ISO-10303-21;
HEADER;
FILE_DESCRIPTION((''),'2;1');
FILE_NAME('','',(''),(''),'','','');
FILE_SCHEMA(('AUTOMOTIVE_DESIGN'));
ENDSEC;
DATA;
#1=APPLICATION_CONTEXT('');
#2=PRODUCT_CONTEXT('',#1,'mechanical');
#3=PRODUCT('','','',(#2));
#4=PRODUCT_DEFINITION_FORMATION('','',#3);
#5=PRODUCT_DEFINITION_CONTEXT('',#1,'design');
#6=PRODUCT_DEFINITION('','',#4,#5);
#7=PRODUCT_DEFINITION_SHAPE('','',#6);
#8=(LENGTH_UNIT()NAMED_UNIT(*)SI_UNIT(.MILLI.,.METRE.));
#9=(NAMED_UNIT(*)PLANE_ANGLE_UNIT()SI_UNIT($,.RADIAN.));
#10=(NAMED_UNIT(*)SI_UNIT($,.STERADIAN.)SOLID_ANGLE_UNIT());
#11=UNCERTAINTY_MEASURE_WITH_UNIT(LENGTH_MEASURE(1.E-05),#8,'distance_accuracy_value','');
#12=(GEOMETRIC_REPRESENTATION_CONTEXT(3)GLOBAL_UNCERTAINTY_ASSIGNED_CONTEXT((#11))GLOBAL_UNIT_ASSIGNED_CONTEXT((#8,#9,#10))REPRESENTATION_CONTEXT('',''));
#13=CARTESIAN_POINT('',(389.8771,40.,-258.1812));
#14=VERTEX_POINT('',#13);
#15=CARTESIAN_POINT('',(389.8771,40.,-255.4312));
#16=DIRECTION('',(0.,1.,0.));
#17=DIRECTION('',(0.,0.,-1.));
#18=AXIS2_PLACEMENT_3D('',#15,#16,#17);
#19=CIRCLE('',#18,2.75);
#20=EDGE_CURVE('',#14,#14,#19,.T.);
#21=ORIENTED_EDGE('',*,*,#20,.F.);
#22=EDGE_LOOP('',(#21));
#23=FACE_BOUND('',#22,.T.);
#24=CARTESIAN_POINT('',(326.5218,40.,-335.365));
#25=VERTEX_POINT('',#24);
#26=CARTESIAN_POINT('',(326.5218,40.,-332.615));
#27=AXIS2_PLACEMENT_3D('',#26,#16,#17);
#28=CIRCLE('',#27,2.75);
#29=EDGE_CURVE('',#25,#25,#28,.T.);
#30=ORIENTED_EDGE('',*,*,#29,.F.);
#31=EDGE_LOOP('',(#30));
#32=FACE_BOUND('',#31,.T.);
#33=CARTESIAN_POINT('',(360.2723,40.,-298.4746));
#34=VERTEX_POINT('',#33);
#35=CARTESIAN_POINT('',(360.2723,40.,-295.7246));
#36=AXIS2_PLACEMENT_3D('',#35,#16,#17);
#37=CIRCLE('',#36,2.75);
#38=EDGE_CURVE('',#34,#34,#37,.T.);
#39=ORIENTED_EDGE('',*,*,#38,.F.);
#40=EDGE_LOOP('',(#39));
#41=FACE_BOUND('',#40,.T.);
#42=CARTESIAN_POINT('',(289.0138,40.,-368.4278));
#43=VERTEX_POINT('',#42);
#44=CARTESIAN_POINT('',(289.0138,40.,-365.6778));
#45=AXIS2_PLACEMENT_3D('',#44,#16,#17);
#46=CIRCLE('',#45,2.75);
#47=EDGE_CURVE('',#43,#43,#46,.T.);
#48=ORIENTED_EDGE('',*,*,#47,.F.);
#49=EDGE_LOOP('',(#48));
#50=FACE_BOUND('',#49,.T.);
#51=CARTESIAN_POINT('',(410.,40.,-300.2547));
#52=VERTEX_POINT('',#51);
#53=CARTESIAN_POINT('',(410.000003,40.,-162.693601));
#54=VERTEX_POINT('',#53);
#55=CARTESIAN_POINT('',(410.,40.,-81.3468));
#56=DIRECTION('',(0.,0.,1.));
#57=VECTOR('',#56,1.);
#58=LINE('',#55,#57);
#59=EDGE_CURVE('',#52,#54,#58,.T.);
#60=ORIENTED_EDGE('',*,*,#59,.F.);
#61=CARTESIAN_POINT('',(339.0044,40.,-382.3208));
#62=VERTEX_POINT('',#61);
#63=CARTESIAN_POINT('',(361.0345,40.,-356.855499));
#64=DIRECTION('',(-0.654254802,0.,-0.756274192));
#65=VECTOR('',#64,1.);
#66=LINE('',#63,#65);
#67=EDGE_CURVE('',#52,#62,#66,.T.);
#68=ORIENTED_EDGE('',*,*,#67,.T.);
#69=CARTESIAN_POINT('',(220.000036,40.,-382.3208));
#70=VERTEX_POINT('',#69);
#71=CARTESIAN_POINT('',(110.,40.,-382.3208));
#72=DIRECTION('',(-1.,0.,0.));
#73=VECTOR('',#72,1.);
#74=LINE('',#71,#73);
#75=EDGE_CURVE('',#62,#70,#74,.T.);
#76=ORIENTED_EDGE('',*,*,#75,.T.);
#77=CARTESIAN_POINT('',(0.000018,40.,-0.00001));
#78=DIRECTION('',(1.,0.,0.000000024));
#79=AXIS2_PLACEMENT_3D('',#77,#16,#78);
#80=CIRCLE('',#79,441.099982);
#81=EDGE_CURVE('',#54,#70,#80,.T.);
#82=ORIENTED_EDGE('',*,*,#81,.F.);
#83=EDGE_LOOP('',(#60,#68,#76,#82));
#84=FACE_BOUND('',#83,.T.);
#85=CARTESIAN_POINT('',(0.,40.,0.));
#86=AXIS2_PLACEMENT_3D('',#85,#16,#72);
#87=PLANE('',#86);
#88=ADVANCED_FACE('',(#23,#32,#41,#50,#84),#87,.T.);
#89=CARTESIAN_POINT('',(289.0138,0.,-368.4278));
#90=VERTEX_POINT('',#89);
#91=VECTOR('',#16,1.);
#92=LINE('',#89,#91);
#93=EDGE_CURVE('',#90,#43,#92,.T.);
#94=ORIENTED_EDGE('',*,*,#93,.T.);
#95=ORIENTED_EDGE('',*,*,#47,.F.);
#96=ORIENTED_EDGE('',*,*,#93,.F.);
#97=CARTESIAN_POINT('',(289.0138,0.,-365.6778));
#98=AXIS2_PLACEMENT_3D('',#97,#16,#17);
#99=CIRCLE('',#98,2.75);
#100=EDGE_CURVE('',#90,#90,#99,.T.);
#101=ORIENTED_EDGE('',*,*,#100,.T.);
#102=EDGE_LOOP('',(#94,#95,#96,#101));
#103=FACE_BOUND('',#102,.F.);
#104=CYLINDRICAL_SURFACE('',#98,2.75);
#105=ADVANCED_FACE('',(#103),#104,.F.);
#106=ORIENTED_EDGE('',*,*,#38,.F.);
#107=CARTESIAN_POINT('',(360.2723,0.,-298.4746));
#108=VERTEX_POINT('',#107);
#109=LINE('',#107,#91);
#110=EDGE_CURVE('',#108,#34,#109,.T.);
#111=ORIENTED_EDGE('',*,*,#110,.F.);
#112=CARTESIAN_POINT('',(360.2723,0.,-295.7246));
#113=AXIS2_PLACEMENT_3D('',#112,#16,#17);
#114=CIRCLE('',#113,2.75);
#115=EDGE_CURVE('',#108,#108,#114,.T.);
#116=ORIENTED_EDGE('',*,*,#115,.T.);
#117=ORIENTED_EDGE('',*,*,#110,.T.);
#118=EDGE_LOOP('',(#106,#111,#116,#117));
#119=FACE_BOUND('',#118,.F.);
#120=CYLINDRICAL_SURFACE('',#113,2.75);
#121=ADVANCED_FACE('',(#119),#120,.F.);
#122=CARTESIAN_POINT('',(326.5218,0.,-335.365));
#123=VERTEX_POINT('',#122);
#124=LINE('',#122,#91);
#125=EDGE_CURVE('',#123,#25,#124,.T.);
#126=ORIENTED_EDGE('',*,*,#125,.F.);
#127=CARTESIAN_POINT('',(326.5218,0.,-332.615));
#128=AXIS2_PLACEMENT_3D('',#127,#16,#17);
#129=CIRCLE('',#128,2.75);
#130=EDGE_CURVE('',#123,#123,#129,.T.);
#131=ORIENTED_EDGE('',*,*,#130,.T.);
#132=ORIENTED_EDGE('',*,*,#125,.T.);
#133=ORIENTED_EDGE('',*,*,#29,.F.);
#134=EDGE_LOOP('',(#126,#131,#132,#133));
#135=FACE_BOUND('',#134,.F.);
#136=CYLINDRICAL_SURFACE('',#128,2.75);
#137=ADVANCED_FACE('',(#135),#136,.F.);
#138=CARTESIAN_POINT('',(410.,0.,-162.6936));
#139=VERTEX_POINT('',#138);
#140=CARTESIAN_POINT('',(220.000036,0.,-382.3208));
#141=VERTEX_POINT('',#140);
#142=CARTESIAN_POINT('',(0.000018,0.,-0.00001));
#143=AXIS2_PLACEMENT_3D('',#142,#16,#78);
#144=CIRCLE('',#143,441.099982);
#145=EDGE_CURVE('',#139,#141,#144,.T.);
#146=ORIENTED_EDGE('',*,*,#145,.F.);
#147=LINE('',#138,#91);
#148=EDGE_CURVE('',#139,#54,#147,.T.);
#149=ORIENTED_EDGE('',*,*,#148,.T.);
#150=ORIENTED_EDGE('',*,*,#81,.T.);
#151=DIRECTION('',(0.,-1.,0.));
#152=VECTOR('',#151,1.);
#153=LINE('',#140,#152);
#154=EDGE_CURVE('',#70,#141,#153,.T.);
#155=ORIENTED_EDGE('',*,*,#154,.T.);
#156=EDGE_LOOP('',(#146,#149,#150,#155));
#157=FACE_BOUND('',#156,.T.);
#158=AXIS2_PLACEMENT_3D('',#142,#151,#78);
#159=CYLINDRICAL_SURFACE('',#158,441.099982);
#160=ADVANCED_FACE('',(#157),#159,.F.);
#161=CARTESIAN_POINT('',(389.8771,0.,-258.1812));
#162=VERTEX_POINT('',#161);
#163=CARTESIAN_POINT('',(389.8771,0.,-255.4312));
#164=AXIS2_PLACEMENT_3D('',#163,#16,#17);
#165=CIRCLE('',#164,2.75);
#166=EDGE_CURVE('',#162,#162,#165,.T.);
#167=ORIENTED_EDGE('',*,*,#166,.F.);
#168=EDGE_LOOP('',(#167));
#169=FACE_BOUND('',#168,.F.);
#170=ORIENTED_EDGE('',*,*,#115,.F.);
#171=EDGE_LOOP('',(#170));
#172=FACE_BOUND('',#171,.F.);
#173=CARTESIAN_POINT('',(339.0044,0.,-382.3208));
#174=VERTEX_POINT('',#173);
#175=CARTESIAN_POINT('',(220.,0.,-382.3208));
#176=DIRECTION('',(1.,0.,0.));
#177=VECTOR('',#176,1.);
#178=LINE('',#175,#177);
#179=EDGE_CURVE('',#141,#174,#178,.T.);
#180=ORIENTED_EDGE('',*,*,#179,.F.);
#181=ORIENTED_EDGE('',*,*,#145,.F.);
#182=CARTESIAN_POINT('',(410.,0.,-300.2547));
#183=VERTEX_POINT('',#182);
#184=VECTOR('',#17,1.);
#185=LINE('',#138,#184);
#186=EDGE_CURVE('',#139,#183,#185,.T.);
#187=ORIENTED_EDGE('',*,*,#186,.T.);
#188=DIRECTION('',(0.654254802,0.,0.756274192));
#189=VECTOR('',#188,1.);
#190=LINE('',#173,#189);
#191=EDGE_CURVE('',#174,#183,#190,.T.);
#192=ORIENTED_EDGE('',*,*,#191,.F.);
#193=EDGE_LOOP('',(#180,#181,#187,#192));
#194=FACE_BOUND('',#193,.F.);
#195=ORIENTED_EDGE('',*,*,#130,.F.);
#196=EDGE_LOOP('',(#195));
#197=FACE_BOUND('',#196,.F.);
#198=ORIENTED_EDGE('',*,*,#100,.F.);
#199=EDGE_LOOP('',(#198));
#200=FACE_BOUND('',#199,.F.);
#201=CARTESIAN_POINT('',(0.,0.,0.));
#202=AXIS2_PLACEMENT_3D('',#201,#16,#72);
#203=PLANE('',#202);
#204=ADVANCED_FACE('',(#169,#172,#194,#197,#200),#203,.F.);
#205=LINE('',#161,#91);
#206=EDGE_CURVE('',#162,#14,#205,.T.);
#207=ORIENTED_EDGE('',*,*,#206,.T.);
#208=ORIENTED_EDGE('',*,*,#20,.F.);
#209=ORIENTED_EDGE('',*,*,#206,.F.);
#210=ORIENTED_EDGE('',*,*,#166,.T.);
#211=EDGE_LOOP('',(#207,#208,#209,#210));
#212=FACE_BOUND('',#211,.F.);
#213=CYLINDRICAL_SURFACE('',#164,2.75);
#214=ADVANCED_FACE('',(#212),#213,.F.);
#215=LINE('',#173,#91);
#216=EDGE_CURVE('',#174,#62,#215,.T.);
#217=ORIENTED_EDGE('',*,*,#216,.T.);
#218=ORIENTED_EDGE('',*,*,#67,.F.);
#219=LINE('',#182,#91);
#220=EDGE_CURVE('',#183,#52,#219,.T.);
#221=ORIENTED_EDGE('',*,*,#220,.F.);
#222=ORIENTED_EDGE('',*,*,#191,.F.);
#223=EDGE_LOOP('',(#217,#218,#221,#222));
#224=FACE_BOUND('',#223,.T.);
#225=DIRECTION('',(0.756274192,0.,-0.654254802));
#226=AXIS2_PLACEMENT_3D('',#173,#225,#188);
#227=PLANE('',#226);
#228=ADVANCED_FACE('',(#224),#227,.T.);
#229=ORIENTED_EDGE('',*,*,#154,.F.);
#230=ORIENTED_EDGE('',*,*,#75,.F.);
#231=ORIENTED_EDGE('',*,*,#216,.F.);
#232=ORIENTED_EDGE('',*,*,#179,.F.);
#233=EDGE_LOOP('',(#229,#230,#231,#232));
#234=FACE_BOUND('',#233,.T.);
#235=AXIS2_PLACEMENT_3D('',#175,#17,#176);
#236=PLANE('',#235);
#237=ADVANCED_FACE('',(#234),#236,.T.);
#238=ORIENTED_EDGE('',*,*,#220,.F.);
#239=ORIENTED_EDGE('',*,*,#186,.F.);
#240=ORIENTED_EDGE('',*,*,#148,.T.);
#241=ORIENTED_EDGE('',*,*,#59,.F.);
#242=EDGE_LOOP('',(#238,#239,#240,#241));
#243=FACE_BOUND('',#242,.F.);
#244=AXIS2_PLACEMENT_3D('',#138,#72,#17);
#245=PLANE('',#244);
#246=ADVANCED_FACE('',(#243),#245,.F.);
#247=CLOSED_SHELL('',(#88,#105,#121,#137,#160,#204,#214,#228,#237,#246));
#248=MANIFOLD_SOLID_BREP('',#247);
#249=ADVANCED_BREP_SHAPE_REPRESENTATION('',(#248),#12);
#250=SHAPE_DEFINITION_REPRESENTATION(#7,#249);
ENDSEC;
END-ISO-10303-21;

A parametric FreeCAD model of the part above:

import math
import FreeCAD as App
import Part
import Sketcher

V = App.Vector
Q = App.Units.Quantity

doc = App.newDocument("Part")
params = doc.addObject("Spreadsheet::Sheet", "Params")
for row, (alias, value) in enumerate([
    ("sketch1_radius", "441.1 mm"),
    ("sketch1_width", "720 mm"),
    ("sketch1_height", "400 mm"),
    ("pad1_length", "40 mm"),
    ("sketch2_diameter", "5.5 mm"),
    ("hole_diameter", "5.5 mm"),
], start=1):
    params.set(f"A{row}", alias)
    params.set(f"B{row}", "=" + value)
    params.setAlias(f"B{row}", alias)

body = doc.addObject("PartDesign::Body", "Body")

# Sketch on XZ plane
sketch1 = doc.addObject("Sketcher::SketchObject", "Sketch")
body.addObject(sketch1)
sketch1.AttachmentSupport = (doc.XZ_Plane, [""])
sketch1.MapMode = "FlatFace"
sketch1.addGeometry([
    Part.ArcOfCircle(Part.Circle(V(0, 0, 0), V(0, 0, 1), 441), math.radians(-120), math.radians(0)),  # 0
    Part.LineSegment(V(441, 0, 0), V(441, 400, 0)),  # 1
    Part.LineSegment(V(441, 400, 0), V(500, 400, 0)),  # 2
    Part.LineSegment(V(500, 400, 0), V(500, -500, 0)),  # 3
    Part.LineSegment(V(500, -500, 0), V(-220, -500, 0)),  # 4
    Part.LineSegment(V(-220, -500, 0), V(-220, -382, 0)),  # 5
], False)
sketch1.addConstraint([
    Sketcher.Constraint("Tangent", 0, 2, 1, 1),
    Sketcher.Constraint("Coincident", 1, 2, 2, 1),
    Sketcher.Constraint("Coincident", 2, 2, 3, 1),
    Sketcher.Constraint("Coincident", 3, 2, 4, 1),
    Sketcher.Constraint("Coincident", 4, 2, 5, 1),
    Sketcher.Constraint("Coincident", 5, 2, 0, 1),
    Sketcher.Constraint("Vertical", 1),
    Sketcher.Constraint("Horizontal", 2),
    Sketcher.Constraint("Vertical", 3),
    Sketcher.Constraint("Horizontal", 4),
    Sketcher.Constraint("Vertical", 5),
    Sketcher.Constraint("Coincident", 0, 3, -1, 1),
    Sketcher.Constraint("Radius", 0, Q("441.1 mm")),
    Sketcher.Constraint("DistanceX", 4, 2, 4, 1, Q("720 mm")),
    Sketcher.Constraint("DistanceY", 1, 1, 1, 2, Q("400 mm")),
    Sketcher.Constraint("DistanceX", -1, 1, 2, 2, Q("500 mm")),
    Sketcher.Constraint("DistanceY", 3, 2, -1, 1, Q("500 mm")),
])
sketch1.setExpression("Constraints[12]", "Params.sketch1_radius")
sketch1.setExpression("Constraints[13]", "Params.sketch1_width")
sketch1.setExpression("Constraints[14]", "Params.sketch1_height")
pad1 = doc.addObject("PartDesign::Pad", "Pad")
body.addObject(pad1)
pad1.Profile = sketch1
pad1.setExpression("Length", "Params.pad1_length")
pad1.Reversed = True

# Sketch on XZ plane
sketch2 = doc.addObject("Sketcher::SketchObject", "Sketch001")
body.addObject(sketch2)
sketch2.AttachmentSupport = (doc.XZ_Plane, [""])
sketch2.MapMode = "FlatFace"
sketch2.addGeometry([
    Part.Circle(V(-200, -421, 0), V(0, 0, 1), 2.8),  # 0
    Part.Circle(V(-156, -439.2, 0), V(0, 0, 1), 2.8),  # 1
    Part.Circle(V(-58.7, -462.4, 0), V(0, 0, 1), 2.8),  # 2
    Part.Circle(V(41.2, -464.3, 0), V(0, 0, 1), 2.8),  # 3
    Part.Circle(V(139.3, -444.8, 0), V(0, 0, 1), 2.8),  # 4
    Part.Circle(V(231, -404.8, 0), V(0, 0, 1), 2.8),  # 5
    Part.Circle(V(289, -365.7, 0), V(0, 0, 1), 2.8),  # 6
    Part.Circle(V(326.5, -332.6, 0), V(0, 0, 1), 2.8),  # 7
    Part.Circle(V(360.3, -295.7, 0), V(0, 0, 1), 2.8),  # 8
    Part.Circle(V(389.9, -255.4, 0), V(0, 0, 1), 2.8),  # 9
    Part.Circle(V(423.7, -194.2, 0), V(0, 0, 1), 2.8),  # 10
    Part.Circle(V(445.2, -138.1, 0), V(0, 0, 1), 2.8),  # 11
    Part.Circle(V(464.4, -40, 0), V(0, 0, 1), 2.8),  # 12
    Part.Circle(V(466.1, 60, 0), V(0, 0, 1), 2.8),  # 13
    Part.Circle(V(466.1, 160, 0), V(0, 0, 1), 2.8),  # 14
    Part.Circle(V(466.1, 260, 0), V(0, 0, 1), 2.8),  # 15
    Part.Circle(V(466.1, 360, 0), V(0, 0, 1), 2.8),  # 16
], False)
sketch2.addConstraint([
    Sketcher.Constraint("Equal", 0, 1),
    Sketcher.Constraint("Equal", 1, 2),
    Sketcher.Constraint("Equal", 2, 3),
    Sketcher.Constraint("Equal", 3, 4),
    Sketcher.Constraint("Equal", 4, 5),
    Sketcher.Constraint("Equal", 5, 6),
    Sketcher.Constraint("Equal", 6, 7),
    Sketcher.Constraint("Equal", 7, 8),
    Sketcher.Constraint("Equal", 8, 9),
    Sketcher.Constraint("Equal", 9, 10),
    Sketcher.Constraint("Equal", 10, 11),
    Sketcher.Constraint("Equal", 11, 12),
    Sketcher.Constraint("Equal", 12, 13),
    Sketcher.Constraint("Equal", 13, 14),
    Sketcher.Constraint("Equal", 14, 15),
    Sketcher.Constraint("Equal", 15, 16),
    Sketcher.Constraint("Vertical", 13, 3, 14, 3),
    Sketcher.Constraint("Vertical", 14, 3, 15, 3),
    Sketcher.Constraint("Vertical", 15, 3, 16, 3),
    Sketcher.Constraint("Diameter", 0, Q("5.5 mm")),
    Sketcher.Constraint("DistanceX", 0, 3, -1, 1, Q("200 mm")),
    Sketcher.Constraint("DistanceY", -1, 1, 13, 3, Q("60 mm")),
    Sketcher.Constraint("DistanceY", -1, 1, 14, 3, Q("160 mm")),
    Sketcher.Constraint("DistanceY", -1, 1, 15, 3, Q("260 mm")),
    Sketcher.Constraint("DistanceY", -1, 1, 16, 3, Q("360 mm")),
    Sketcher.Constraint("DistanceX", -1, 1, 13, 3, Q("466.1 mm")),
    Sketcher.Constraint("DistanceX", -1, 1, 4, 3, Q("139.32 mm")),
    Sketcher.Constraint("DistanceX", 2, 3, 6, 3, Q("347.76 mm")),
    Sketcher.Constraint("DistanceY", 4, 3, 9, 3, Q("189.36 mm")),
    Sketcher.Constraint("DistanceX", 7, 3, 12, 3, Q("137.86 mm")),
    Sketcher.Constraint("DistanceY", 2, 3, -1, 1, Q("462.383 mm")),
    Sketcher.Constraint("DistanceX", -1, 1, 3, 3, Q("41.236 mm")),
    Sketcher.Constraint("DistanceY", 4, 3, -1, 1, Q("444.791 mm")),
    Sketcher.Constraint("DistanceX", -1, 1, 5, 3, Q("230.991 mm")),
    Sketcher.Constraint("DistanceY", 5, 3, -1, 1, Q("404.836 mm")),
    Sketcher.Constraint("DistanceY", 7, 3, -1, 1, Q("332.615 mm")),
    Sketcher.Constraint("DistanceX", -1, 1, 9, 3, Q("389.877 mm")),
    Sketcher.Constraint("DistanceX", 1, 3, 2, 3, Q("97.278 mm")),
    Sketcher.Constraint("DistanceY", 2, 3, 1, 3, Q("23.173 mm")),
    Sketcher.Constraint("DistanceX", 2, 3, 3, 3, Q("99.982 mm")),
    Sketcher.Constraint("DistanceY", 3, 3, 1, 3, Q("25.062 mm")),
    Sketcher.Constraint("DistanceX", 6, 3, 7, 3, Q("37.508 mm")),
    Sketcher.Constraint("DistanceX", 9, 3, 10, 3, Q("33.856 mm")),
    Sketcher.Constraint("DistanceY", 9, 3, 10, 3, Q("61.268 mm")),
    Sketcher.Constraint("DistanceX", 8, 3, 10, 3, Q("63.461 mm")),
    Sketcher.Constraint("DistanceY", 10, 3, 11, 3, Q("56.042 mm")),
    Sketcher.Constraint("DistanceX", 7, 3, 11, 3, Q("118.643 mm")),
    Sketcher.Constraint("DistanceY", 10, 3, 12, 3, Q("154.178 mm")),
    Sketcher.Constraint("DistanceY", 0, 3, -1, 1, Q("421.0098 mm")),
    Sketcher.Constraint("DistanceY", 6, 3, -1, 1, Q("365.6778 mm")),
    Sketcher.Constraint("DistanceY", 8, 3, -1, 1, Q("295.7246 mm")),
])
sketch2.setExpression("Constraints[19]", "Params.sketch2_diameter")
doc.recompute()
hole = doc.addObject("PartDesign::Hole", "Hole")
body.addObject(hole)
hole.Profile = sketch2
hole.ThreadType = "None"
hole.setExpression("Diameter", "Params.hole_diameter")
hole.DepthType = "ThroughAll"

# Sketch on XZ plane
sketch3 = doc.addObject("Sketcher::SketchObject", "Sketch002")
body.addObject(sketch3)
sketch3.AttachmentSupport = (doc.XZ_Plane, [""])
sketch3.MapMode = "FlatFace"
sketch3.addGeometry([
    Part.LineSegment(V(853, 566, 0), V(-596, 566, 0)),  # 0
    Part.LineSegment(V(-596, 566, 0), V(-596, -851, 0)),  # 1
    Part.LineSegment(V(-596, -851, 0), V(853, -851, 0)),  # 2
    Part.LineSegment(V(853, -851, 0), V(853, 566, 0)),  # 3
    Part.LineSegment(V(410, -300, 0), V(339, -382, 0)),  # 4
    Part.LineSegment(V(339, -382, 0), V(220, -382, 0)),  # 5
    Part.LineSegment(V(220, -382, 0), V(410, -163, 0)),  # 6
    Part.LineSegment(V(410, -163, 0), V(410, -300, 0)),  # 7
], False)
sketch3.addConstraint([
    Sketcher.Constraint("Coincident", 0, 2, 1, 1),
    Sketcher.Constraint("Coincident", 1, 2, 2, 1),
    Sketcher.Constraint("Coincident", 2, 2, 3, 1),
    Sketcher.Constraint("Coincident", 3, 2, 0, 1),
    Sketcher.Constraint("Coincident", 4, 2, 5, 1),
    Sketcher.Constraint("Coincident", 5, 2, 6, 1),
    Sketcher.Constraint("Coincident", 6, 2, 7, 1),
    Sketcher.Constraint("Coincident", 7, 2, 4, 1),
    Sketcher.Constraint("Horizontal", 0),
    Sketcher.Constraint("Vertical", 1),
    Sketcher.Constraint("Horizontal", 2),
    Sketcher.Constraint("Vertical", 3),
    Sketcher.Constraint("Horizontal", 5),
    Sketcher.Constraint("Vertical", 7),
    Sketcher.Constraint("Parallel", 4, 6),
    Sketcher.Constraint("DistanceX", -1, 1, 5, 2, Q("220 mm")),
    Sketcher.Constraint("DistanceX", -1, 1, 6, 2, Q("410 mm")),
    Sketcher.Constraint("Distance", 6, Q("290.4068 mm")),
    Sketcher.Constraint("DistanceY", 7, 2, 7, 1, Q("137.561 mm")),
    Sketcher.Constraint("DistanceX", 0, 2, 0, 1, Q("1448.6337 mm")),
    Sketcher.Constraint("DistanceY", 1, 2, 1, 1, Q("1416.8274 mm")),
    Sketcher.Constraint("DistanceY", -1, 1, 0, 2, Q("565.809 mm")),
    Sketcher.Constraint("DistanceX", 4, 2, 2, 2, Q("513.847 mm")),
    Sketcher.Constraint("DistanceY", 4, 2, -1, 1, Q("382.3208 mm")),
])
pocket1 = doc.addObject("PartDesign::Pocket", "Pocket")
body.addObject(pocket1)
pocket1.Profile = sketch3
pocket1.Type = "ThroughAll"

doc.recompute()
